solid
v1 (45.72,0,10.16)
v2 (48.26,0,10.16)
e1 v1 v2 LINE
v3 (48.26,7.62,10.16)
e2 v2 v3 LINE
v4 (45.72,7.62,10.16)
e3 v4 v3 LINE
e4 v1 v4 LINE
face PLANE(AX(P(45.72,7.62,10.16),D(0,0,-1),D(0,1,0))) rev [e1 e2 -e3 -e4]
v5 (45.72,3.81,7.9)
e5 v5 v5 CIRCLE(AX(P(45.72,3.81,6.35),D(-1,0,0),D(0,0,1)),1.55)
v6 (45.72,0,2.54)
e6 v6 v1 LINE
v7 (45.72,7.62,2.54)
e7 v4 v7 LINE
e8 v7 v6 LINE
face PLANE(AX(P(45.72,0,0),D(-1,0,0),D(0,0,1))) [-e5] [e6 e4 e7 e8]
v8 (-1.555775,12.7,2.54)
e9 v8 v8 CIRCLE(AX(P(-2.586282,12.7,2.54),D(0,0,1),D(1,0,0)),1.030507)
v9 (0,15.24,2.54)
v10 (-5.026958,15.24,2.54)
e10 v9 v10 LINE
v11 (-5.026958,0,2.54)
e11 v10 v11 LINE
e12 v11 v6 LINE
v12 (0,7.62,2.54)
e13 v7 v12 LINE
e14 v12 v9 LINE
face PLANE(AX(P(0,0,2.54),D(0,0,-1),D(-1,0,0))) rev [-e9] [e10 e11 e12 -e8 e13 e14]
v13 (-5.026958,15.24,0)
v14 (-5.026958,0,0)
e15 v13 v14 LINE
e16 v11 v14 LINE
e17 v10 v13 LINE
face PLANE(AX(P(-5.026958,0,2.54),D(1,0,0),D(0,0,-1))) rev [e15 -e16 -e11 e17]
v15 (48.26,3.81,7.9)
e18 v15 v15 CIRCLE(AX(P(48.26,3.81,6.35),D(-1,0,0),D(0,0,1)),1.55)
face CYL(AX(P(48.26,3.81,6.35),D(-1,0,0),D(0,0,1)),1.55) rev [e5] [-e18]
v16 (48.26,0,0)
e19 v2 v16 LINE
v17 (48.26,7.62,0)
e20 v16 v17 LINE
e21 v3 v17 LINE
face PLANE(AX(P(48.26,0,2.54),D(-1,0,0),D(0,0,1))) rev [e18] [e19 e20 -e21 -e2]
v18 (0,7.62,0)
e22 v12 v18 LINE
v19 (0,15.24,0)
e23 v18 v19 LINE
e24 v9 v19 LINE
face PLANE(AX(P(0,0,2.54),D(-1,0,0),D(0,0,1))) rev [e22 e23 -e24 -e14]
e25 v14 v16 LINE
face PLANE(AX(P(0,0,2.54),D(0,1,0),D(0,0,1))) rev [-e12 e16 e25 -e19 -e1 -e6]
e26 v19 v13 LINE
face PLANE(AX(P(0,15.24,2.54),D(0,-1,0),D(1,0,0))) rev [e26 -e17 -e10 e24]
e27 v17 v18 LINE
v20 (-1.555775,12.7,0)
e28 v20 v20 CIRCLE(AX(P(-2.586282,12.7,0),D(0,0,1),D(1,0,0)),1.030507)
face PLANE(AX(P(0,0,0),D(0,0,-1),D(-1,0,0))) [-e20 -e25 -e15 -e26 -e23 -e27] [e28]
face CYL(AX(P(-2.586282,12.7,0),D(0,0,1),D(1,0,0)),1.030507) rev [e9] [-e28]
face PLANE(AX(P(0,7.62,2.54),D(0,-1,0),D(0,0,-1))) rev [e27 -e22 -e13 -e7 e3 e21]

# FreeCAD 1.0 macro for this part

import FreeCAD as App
import Part
import Sketcher
Q = App.Units.Quantity


def add_polygon(sketch, points):
    """Adds a closed chain of lines whose ends are joined by coincident constraints."""
    first, n = sketch.GeometryCount, len(points)
    for a, b in zip(points, points[1:] + points[:1]):
        sketch.addGeometry(Part.LineSegment(App.Vector(*a, 0), App.Vector(*b, 0)), False)
    for i in range(n):
        sketch.addConstraint(Sketcher.Constraint("Coincident", first + i, 2, first + (i + 1) % n, 1))

doc = App.newDocument("Part")
body = doc.addObject("PartDesign::Body", "Body")

# Sketch on XY plane
sketch1 = body.newObject("Sketcher::SketchObject", "Sketch")
sketch1.AttachmentSupport = (doc.getObject("XY_Plane"), [""])
sketch1.MapMode = "FlatFace"
add_polygon(sketch1, [(0, 8), (0, 0), (48, 0), (48, 8)])  # lines 0-3
sketch1.addConstraint([
    Sketcher.Constraint("Vertical", 0),
    Sketcher.Constraint("Horizontal", 1),
    Sketcher.Constraint("Vertical", 2),
    Sketcher.Constraint("Horizontal", 3),
    Sketcher.Constraint("Coincident", 0, 2, -1, 1),
    Sketcher.Constraint("DistanceX", 1, 1, 1, 2, Q("1.9 in")),
    Sketcher.Constraint("DistanceY", 0, 2, 0, 1, Q("0.3 in")),
])
pad1 = body.newObject("PartDesign::Pad", "Pad")
pad1.Profile = sketch1
pad1.Length = Q("0.1 in")

# Sketch on XY plane
sketch2 = body.newObject("Sketcher::SketchObject", "Sketch001")
sketch2.AttachmentSupport = (doc.getObject("XY_Plane"), [""])
sketch2.MapMode = "FlatFace"
add_polygon(sketch2, [(-5, 15), (-5, 0), (0, 0), (0, 15)])  # lines 0-3
sketch2.addConstraint([
    Sketcher.Constraint("Vertical", 0),
    Sketcher.Constraint("Horizontal", 1),
    Sketcher.Constraint("Vertical", 2),
    Sketcher.Constraint("Horizontal", 3),
    Sketcher.Constraint("Coincident", 1, 2, -1, 1),
    Sketcher.Constraint("DistanceY", 0, 2, 0, 1, Q("0.6 in")),
    Sketcher.Constraint("DistanceX", 1, 1, 1, 2, Q("5.026958 mm")),
])
pad2 = body.newObject("PartDesign::Pad", "Pad001")
pad2.Profile = sketch2
pad2.Length = Q("0.1 in")

# Sketch on XY plane
sketch3 = body.newObject("Sketcher::SketchObject", "Sketch002")
sketch3.AttachmentSupport = (doc.getObject("XY_Plane"), [""])
sketch3.MapMode = "FlatFace"
sketch3.AttachmentOffset = App.Placement(App.Vector(0, 0, 0.1 * 25.4), App.Rotation())
sketch3.addGeometry(Part.Circle(App.Vector(-2.6, 12.7, 0), App.Vector(0, 0, 1), 1), False)
sketch3.addConstraint([
    Sketcher.Constraint("DistanceY", -1, 1, 0, 3, Q("0.5 in")),
    Sketcher.Constraint("Diameter", 0, Q("2.061015 mm")),
    Sketcher.Constraint("DistanceX", 0, 3, -1, 1, Q("2.586282 mm")),
])
pocket1 = body.newObject("PartDesign::Pocket", "Pocket")
pocket1.Profile = sketch3
pocket1.Length = Q("0.1 in")

# Sketch on YZ plane
sketch4 = body.newObject("Sketcher::SketchObject", "Sketch003")
sketch4.AttachmentSupport = (doc.getObject("YZ_Plane"), [""])
sketch4.MapMode = "FlatFace"
sketch4.AttachmentOffset = App.Placement(App.Vector(0, 0, 1.9 * 25.4), App.Rotation())
add_polygon(sketch4, [(8, 3), (0, 3), (0, 10), (8, 10)])  # lines 0-3
sketch4.addConstraint([
    Sketcher.Constraint("Horizontal", 0),
    Sketcher.Constraint("Vertical", 1),
    Sketcher.Constraint("Horizontal", 2),
    Sketcher.Constraint("Vertical", 3),
    Sketcher.Constraint("PointOnObject", 0, 2, -2),
    Sketcher.Constraint("Equal", 2, 1),
    Sketcher.Constraint("DistanceX", 0, 2, 0, 1, Q("0.3 in")),
    Sketcher.Constraint("DistanceY", -1, 1, 0, 2, Q("0.1 in")),
])
pad3 = body.newObject("PartDesign::Pad", "Pad002")
pad3.Profile = sketch4
pad3.Length = Q("0.1 in")
pad3.Reversed = True

# Sketch on YZ plane
sketch5 = body.newObject("Sketcher::SketchObject", "Sketch004")
sketch5.AttachmentSupport = (doc.getObject("YZ_Plane"), [""])
sketch5.MapMode = "FlatFace"
sketch5.AttachmentOffset = App.Placement(App.Vector(0, 0, 1.8 * 25.4), App.Rotation())
sketch5.addGeometry(Part.Circle(App.Vector(3.8, 6.3, 0), App.Vector(0, 0, 1), 1.6), False)
sketch5.addConstraint([
    Sketcher.Constraint("Diameter", 0, Q("3.1 mm")),
    Sketcher.Constraint("DistanceX", -1, 1, 0, 3, Q("0.15 in")),
    Sketcher.Constraint("DistanceY", -1, 1, 0, 3, Q("0.25 in")),
])
pocket2 = body.newObject("PartDesign::Pocket", "Pocket001")
pocket2.Profile = sketch5
pocket2.Length = Q("0.1 in")
pocket2.Reversed = True

doc.recompute()
